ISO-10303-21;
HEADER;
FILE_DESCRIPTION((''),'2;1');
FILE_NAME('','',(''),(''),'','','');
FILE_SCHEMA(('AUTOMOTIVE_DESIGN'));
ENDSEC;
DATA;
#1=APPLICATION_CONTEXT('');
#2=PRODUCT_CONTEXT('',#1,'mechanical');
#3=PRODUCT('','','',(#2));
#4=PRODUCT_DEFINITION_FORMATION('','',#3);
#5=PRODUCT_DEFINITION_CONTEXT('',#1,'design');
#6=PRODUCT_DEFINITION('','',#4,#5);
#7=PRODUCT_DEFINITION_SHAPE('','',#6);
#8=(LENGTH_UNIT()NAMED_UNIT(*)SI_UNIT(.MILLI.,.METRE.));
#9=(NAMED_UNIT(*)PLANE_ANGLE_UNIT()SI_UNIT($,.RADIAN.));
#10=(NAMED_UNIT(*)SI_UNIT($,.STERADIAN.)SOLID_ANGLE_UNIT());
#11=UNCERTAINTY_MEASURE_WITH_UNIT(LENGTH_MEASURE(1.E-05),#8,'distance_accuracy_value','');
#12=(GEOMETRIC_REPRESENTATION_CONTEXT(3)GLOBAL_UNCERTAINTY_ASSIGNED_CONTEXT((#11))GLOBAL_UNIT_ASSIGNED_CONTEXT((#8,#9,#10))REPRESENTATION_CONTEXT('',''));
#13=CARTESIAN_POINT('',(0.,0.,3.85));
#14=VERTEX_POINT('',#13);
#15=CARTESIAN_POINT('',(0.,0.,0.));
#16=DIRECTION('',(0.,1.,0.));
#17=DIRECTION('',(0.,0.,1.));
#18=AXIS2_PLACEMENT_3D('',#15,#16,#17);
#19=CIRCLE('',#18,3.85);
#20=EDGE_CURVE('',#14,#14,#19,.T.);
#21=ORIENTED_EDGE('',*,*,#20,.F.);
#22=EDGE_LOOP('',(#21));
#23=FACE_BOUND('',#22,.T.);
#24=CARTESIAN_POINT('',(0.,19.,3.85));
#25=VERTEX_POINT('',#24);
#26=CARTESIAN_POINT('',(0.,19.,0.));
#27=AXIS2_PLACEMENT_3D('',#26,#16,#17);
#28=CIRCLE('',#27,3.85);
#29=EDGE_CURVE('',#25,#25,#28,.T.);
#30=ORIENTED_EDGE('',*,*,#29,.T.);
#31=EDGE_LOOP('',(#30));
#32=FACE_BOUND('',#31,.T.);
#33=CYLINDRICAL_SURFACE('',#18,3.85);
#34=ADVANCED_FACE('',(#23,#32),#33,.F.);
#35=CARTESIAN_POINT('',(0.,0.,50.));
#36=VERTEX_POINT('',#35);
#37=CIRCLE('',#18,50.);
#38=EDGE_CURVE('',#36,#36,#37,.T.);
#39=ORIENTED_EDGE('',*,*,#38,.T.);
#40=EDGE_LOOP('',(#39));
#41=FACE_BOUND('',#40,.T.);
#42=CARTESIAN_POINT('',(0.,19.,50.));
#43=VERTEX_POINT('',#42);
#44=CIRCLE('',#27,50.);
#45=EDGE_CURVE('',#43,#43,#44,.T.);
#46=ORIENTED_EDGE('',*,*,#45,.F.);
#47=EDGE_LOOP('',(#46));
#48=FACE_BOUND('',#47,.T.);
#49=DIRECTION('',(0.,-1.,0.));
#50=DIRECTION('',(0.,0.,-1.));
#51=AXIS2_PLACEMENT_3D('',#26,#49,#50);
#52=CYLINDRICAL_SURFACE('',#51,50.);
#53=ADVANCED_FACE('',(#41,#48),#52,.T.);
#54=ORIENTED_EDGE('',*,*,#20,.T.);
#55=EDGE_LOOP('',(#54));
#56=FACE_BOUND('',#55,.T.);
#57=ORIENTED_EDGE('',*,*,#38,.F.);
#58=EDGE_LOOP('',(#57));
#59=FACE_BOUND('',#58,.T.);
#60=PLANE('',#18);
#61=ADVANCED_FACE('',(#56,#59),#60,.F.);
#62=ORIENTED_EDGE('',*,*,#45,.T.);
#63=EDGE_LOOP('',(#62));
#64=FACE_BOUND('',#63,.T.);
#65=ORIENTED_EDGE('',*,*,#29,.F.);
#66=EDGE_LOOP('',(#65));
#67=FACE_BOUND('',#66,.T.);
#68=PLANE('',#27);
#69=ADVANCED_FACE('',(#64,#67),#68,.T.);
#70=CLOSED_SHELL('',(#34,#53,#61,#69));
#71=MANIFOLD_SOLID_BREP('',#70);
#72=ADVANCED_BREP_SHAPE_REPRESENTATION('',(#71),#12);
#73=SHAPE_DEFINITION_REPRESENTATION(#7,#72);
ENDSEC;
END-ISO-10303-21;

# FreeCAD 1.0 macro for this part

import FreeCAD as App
import Part
import Sketcher
Q = App.Units.Quantity

doc = App.newDocument("Part")
body = doc.addObject("PartDesign::Body", "Body")

# Sketch on XZ plane
sketch1 = body.newObject("Sketcher::SketchObject", "Sketch")
sketch1.AttachmentSupport = (doc.getObject("XZ_Plane"), [""])
sketch1.MapMode = "FlatFace"
sketch1.addGeometry(Part.Circle(App.Vector(0, 0, 0), App.Vector(0, 0, 1), 50), False)
sketch1.addConstraint(Sketcher.Constraint("Coincident", 0, 3, -1, 1))
sketch1.addConstraint(Sketcher.Constraint("Diameter", 0, Q("100 mm")))
pad1 = body.newObject("PartDesign::Pad", "Pad")
pad1.Profile = sketch1
pad1.Length = 19
pad1.Reversed = True

# Sketch on XZ plane
sketch2 = body.newObject("Sketcher::SketchObject", "Sketch001")
sketch2.AttachmentSupport = (doc.getObject("XZ_Plane"), [""])
sketch2.MapMode = "FlatFace"
sketch2.AttachmentOffset = App.Placement(App.Vector(0, 0, -19), App.Rotation())
sketch2.addGeometry(Part.Circle(App.Vector(0, 0, 0), App.Vector(0, 0, 1), 3.9), False)
sketch2.addConstraint(Sketcher.Constraint("Coincident", 0, 3, -1, 1))
sketch2.addConstraint(Sketcher.Constraint("Diameter", 0, Q("7.7 mm")))
pocket1 = body.newObject("PartDesign::Pocket", "Pocket")
pocket1.Profile = sketch2
pocket1.Type = "ThroughAll"
pocket1.Reversed = True

doc.recompute()
